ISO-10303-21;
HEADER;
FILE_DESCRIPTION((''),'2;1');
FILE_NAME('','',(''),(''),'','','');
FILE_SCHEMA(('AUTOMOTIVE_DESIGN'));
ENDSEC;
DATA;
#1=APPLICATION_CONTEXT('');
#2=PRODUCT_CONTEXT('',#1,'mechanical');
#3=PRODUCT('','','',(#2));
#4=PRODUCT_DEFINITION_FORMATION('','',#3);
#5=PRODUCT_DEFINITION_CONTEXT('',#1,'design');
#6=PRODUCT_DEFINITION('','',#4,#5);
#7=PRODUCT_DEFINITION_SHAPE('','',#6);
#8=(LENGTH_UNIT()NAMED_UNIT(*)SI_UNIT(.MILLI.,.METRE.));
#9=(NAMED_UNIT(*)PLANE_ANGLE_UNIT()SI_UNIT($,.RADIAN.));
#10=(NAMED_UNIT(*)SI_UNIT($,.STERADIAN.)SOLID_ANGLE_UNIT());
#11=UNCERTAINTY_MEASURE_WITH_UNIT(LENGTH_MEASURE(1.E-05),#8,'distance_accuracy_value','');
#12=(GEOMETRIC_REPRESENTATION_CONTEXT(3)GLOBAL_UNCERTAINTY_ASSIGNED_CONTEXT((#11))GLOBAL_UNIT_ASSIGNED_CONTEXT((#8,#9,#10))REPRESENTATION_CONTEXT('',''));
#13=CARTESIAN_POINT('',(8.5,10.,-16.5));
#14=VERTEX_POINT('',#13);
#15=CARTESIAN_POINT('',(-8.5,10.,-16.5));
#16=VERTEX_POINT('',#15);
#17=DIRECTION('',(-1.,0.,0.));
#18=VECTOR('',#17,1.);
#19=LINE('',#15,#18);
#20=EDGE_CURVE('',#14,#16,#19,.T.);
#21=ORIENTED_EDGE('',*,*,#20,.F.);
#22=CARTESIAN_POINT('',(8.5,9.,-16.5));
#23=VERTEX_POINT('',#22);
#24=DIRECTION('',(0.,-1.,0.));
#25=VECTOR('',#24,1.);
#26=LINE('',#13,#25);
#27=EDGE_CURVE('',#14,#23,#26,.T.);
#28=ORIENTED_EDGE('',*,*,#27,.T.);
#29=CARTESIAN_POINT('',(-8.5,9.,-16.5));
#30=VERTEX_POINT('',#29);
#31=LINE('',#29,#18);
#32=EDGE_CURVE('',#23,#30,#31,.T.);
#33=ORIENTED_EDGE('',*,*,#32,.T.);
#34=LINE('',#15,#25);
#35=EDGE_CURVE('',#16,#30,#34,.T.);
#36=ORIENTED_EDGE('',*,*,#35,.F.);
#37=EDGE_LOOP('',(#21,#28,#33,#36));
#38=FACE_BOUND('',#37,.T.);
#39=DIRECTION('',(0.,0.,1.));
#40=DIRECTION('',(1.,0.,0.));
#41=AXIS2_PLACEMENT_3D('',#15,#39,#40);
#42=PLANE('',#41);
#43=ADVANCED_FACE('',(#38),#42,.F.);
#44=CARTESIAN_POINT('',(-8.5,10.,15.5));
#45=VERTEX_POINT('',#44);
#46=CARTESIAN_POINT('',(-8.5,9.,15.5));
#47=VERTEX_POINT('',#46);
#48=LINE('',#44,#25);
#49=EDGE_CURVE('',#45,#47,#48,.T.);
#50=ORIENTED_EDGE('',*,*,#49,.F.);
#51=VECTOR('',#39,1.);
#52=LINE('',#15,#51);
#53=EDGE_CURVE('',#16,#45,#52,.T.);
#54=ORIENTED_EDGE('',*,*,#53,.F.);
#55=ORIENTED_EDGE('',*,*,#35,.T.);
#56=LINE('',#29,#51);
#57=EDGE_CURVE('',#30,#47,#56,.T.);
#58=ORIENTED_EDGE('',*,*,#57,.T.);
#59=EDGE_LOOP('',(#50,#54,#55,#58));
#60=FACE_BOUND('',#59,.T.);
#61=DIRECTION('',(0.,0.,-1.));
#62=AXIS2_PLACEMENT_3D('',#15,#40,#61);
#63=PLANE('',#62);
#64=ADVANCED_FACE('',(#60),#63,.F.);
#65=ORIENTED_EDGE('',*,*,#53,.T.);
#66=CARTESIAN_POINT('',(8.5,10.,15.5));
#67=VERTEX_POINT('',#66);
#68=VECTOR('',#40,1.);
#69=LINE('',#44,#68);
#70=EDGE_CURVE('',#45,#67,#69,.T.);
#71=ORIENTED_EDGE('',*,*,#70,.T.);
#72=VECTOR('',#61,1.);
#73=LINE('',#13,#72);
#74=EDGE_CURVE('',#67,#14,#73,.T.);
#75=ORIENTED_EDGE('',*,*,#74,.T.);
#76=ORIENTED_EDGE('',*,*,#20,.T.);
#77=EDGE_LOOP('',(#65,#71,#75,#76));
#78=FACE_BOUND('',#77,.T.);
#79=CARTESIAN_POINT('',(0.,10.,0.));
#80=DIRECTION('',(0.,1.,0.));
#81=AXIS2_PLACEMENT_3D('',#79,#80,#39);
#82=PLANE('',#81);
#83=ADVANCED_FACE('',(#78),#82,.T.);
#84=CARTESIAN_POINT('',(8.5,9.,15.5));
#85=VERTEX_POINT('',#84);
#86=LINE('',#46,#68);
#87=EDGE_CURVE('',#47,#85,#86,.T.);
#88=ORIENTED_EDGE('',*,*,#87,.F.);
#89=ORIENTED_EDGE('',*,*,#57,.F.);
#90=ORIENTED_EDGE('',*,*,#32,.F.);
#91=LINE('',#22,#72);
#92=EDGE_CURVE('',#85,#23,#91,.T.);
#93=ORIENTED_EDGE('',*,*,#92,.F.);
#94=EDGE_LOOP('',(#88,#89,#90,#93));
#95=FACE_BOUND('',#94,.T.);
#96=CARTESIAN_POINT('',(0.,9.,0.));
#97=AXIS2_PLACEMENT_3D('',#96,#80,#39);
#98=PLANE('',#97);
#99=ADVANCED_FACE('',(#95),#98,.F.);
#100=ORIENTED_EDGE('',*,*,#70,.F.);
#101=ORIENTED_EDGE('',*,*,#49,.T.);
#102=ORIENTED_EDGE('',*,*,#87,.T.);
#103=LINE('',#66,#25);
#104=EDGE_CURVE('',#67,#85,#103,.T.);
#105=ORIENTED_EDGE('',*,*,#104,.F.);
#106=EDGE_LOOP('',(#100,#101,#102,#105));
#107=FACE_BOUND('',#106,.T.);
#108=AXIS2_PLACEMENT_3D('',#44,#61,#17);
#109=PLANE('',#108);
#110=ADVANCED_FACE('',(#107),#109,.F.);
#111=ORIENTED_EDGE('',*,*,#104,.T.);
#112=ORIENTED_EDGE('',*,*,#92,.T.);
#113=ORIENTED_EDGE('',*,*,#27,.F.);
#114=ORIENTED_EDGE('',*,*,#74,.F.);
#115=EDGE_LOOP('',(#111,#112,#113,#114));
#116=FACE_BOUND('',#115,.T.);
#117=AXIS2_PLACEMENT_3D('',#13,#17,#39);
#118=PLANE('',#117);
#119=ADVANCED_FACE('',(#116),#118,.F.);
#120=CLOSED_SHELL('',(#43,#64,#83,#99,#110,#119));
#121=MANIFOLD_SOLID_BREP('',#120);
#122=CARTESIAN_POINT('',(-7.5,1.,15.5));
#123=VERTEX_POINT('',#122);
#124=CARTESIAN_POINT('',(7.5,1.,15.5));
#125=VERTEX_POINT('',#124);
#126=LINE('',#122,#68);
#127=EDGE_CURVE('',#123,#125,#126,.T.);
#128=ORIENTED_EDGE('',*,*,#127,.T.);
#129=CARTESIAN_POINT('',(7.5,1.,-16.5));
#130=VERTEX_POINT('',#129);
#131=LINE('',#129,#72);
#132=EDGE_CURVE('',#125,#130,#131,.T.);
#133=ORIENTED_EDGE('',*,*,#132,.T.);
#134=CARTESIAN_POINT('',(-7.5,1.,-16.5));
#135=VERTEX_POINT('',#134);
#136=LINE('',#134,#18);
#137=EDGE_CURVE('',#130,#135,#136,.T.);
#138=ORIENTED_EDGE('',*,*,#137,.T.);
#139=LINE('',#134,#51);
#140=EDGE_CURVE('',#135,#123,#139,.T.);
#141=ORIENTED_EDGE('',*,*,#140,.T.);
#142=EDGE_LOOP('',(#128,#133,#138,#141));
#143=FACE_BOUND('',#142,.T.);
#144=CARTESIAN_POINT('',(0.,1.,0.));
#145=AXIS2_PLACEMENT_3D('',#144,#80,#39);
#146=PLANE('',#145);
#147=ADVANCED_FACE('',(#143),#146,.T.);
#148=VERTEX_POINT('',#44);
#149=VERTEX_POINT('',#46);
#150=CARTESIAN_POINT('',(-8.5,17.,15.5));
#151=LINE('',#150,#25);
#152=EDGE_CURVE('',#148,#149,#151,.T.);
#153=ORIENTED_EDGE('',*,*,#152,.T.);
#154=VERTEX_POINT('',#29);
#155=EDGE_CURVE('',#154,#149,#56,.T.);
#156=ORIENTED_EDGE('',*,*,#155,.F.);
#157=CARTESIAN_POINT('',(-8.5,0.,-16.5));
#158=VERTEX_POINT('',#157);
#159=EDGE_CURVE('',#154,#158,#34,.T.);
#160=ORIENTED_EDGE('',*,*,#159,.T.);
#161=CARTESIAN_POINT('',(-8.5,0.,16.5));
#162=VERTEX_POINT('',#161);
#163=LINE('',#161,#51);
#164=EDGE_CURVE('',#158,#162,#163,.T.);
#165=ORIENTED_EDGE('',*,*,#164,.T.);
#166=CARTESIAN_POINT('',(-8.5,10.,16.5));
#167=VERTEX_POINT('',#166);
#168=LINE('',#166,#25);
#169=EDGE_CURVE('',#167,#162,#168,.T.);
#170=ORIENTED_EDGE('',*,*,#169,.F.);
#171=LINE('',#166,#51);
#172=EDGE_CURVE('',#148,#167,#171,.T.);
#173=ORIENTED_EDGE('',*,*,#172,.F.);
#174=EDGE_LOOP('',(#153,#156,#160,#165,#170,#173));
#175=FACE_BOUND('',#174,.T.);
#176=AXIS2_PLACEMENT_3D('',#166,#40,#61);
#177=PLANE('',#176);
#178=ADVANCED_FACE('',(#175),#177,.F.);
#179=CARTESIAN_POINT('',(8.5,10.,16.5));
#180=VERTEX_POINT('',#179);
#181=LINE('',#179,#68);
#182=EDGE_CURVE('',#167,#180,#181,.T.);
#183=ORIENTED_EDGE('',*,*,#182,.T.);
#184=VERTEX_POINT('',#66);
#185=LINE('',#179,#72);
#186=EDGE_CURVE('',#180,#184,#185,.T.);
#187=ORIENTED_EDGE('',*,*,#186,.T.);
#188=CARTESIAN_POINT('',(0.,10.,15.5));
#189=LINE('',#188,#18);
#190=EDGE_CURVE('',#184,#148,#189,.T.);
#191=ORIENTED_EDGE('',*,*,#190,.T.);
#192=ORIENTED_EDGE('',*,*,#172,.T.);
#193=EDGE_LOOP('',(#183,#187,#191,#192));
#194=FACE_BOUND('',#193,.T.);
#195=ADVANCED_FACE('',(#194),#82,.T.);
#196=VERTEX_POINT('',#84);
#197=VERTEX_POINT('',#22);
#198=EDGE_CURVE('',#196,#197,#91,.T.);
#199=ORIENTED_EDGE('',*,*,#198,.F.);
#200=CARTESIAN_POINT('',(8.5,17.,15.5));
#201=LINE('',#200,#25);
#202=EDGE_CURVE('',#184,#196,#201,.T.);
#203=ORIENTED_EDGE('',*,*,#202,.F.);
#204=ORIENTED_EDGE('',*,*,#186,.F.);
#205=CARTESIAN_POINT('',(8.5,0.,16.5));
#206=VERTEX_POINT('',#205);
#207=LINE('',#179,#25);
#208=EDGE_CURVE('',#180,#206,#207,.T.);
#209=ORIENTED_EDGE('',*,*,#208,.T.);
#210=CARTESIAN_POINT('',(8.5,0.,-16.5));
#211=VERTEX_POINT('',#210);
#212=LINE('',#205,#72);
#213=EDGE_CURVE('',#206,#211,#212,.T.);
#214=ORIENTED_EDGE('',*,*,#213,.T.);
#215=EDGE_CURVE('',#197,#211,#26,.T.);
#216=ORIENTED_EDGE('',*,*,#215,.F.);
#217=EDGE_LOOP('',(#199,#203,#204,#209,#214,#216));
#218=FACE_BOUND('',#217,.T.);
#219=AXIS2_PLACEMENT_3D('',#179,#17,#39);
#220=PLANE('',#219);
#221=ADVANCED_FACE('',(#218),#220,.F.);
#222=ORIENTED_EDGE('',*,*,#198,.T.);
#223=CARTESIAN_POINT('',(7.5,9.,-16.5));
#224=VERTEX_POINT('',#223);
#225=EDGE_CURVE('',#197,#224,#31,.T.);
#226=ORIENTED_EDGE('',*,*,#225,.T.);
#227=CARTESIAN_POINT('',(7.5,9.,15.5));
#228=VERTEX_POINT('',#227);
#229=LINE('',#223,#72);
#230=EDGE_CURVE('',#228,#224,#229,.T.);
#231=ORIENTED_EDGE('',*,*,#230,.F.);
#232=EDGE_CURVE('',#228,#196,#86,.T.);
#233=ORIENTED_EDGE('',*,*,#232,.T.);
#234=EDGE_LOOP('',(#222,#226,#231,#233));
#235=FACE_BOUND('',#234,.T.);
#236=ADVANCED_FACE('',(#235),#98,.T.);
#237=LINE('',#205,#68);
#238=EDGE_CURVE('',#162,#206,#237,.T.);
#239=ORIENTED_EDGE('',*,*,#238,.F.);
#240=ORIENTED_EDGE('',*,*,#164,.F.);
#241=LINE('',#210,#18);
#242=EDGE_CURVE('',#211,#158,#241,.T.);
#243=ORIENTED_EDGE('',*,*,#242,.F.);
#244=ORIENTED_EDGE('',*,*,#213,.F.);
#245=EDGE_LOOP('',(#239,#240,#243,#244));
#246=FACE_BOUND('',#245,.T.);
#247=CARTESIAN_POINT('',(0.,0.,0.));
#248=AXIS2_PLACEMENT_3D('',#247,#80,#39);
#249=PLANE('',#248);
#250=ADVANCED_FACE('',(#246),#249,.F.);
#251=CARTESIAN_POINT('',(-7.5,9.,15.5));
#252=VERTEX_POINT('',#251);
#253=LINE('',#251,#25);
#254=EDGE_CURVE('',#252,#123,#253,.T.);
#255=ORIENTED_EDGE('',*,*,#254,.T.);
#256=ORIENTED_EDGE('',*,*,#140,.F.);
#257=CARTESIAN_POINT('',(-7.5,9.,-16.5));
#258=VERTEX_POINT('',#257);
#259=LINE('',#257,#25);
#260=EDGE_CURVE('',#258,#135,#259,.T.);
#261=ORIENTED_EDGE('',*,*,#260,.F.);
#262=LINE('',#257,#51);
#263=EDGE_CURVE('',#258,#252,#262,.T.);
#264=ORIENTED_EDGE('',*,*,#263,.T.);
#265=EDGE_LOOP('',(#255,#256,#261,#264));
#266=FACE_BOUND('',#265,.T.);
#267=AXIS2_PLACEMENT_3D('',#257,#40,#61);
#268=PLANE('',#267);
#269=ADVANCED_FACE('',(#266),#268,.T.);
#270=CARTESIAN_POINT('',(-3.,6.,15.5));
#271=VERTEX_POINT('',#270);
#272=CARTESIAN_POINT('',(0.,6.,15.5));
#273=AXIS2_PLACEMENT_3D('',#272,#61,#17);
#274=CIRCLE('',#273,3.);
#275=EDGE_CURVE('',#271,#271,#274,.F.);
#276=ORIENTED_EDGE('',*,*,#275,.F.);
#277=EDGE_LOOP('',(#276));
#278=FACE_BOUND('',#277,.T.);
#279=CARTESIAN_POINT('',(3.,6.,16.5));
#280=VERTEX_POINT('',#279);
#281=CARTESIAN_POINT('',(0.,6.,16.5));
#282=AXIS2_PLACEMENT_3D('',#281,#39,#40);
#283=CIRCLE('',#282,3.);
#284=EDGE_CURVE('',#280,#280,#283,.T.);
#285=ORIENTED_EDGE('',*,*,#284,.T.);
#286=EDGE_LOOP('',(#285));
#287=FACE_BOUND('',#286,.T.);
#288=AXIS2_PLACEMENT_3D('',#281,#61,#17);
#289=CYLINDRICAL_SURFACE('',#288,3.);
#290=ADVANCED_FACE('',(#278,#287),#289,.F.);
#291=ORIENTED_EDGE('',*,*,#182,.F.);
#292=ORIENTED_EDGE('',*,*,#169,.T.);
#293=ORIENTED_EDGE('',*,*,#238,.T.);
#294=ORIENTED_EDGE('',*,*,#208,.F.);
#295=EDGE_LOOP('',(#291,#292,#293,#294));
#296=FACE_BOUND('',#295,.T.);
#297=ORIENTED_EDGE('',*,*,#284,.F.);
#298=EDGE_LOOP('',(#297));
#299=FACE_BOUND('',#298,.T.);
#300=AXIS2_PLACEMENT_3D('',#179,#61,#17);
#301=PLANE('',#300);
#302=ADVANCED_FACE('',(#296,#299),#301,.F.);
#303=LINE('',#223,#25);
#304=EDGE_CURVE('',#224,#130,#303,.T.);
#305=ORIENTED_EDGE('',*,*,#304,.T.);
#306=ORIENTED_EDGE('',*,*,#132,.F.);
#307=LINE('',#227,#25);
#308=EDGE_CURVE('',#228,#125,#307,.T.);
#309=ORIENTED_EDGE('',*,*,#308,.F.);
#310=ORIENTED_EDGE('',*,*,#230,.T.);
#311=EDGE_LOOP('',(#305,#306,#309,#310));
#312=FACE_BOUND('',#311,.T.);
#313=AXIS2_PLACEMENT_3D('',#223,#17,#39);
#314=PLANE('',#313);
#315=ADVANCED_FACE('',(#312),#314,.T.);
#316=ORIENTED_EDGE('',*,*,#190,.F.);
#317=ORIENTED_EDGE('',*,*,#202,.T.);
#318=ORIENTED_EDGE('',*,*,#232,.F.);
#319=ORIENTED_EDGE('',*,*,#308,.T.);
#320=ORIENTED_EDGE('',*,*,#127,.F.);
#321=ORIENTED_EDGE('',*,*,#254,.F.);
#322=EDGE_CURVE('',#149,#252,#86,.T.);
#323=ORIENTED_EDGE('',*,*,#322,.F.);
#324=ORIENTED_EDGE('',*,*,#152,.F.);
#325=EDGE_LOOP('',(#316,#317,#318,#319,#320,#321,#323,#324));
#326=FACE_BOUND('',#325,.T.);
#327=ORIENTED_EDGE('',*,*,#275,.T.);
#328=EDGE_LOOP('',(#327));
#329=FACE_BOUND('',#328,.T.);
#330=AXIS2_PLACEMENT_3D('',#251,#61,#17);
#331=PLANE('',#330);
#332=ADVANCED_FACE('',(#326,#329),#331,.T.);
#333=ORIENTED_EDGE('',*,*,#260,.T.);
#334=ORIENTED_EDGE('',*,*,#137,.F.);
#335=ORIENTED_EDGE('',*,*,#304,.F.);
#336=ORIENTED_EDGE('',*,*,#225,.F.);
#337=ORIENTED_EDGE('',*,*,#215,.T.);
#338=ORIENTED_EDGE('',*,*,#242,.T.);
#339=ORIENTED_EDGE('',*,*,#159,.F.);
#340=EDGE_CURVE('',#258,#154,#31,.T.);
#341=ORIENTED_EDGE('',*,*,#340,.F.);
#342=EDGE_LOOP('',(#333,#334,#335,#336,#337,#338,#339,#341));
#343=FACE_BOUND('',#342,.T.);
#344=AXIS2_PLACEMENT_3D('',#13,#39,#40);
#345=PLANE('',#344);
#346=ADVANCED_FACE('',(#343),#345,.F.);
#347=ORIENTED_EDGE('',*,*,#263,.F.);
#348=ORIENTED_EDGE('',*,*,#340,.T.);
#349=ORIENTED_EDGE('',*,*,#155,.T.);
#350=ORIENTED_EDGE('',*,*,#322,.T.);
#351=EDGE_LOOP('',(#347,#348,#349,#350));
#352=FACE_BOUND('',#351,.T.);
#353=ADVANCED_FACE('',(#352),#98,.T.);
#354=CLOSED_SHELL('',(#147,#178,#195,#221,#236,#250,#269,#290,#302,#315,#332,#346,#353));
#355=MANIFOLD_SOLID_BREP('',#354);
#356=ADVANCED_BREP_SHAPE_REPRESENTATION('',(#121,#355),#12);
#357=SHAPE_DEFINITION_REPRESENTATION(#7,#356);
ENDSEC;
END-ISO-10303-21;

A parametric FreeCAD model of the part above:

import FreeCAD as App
import Part
import Sketcher
from FreeCAD import Vector
Q = App.Units.Quantity


def add_polygon(sketch, points):
    """Adds a closed chain of lines whose ends are joined by coincident constraints."""
    first, n = sketch.GeometryCount, len(points)
    for a, b in zip(points, points[1:] + points[:1]):
        sketch.addGeometry(Part.LineSegment(App.Vector(*a, 0), App.Vector(*b, 0)), False)
    for i in range(n):
        sketch.addConstraint(Sketcher.Constraint("Coincident", first + i, 2, first + (i + 1) % n, 1))

doc = App.newDocument("Part")
body = doc.addObject("PartDesign::Body", "Body")

# Sketch on XZ plane
sketch1 = body.newObject("Sketcher::SketchObject", "Sketch")
sketch1.AttachmentSupport = (doc.getObject("XZ_Plane"), [""])
sketch1.MapMode = "FlatFace"
add_polygon(sketch1, [(-8.5, -16.5), (-8.5, 16.5), (8.5, 16.5), (8.5, -16.5)])  # lines 0-3
sketch1.addConstraint(Sketcher.Constraint("Vertical", 0))
sketch1.addConstraint(Sketcher.Constraint("Horizontal", 1))
sketch1.addConstraint(Sketcher.Constraint("Vertical", 2))
sketch1.addConstraint(Sketcher.Constraint("Horizontal", 3))
sketch1.addConstraint(Sketcher.Constraint("Symmetric", 0, 2, 2, 2, -1, 1))
sketch1.addConstraint(Sketcher.Constraint("DistanceX", 1, 1, 1, 2, Q("17 mm")))
sketch1.addConstraint(Sketcher.Constraint("DistanceY", 0, 1, 0, 2, Q("33 mm")))
pad1 = body.newObject("PartDesign::Pad", "Pad")
pad1.Profile = sketch1
pad1.Length = 10
pad1.Reversed = True

# Sketch on XZ plane
sketch2 = body.newObject("Sketcher::SketchObject", "Sketch001")
sketch2.AttachmentSupport = (doc.getObject("XZ_Plane"), [""])
sketch2.MapMode = "FlatFace"
sketch2.AttachmentOffset = App.Placement(Vector(0, 0, -1), App.Rotation())
add_polygon(sketch2, [(-7.5, -16.5), (-7.5, 15.5), (7.5, 15.5), (7.5, -16.5)])  # lines 0-3
sketch2.addConstraint(Sketcher.Constraint("Vertical", 0))
sketch2.addConstraint(Sketcher.Constraint("Horizontal", 1))
sketch2.addConstraint(Sketcher.Constraint("Vertical", 2))
sketch2.addConstraint(Sketcher.Constraint("Horizontal", 3))
sketch2.addConstraint(Sketcher.Constraint("DistanceX", 1, 1, 1, 2, Q("15 mm")))
sketch2.addConstraint(Sketcher.Constraint("DistanceY", 0, 1, 0, 2, Q("32 mm")))
sketch2.addConstraint(Sketcher.Constraint("DistanceX", 0, 2, -1, 1, Q("7.5 mm")))
sketch2.addConstraint(Sketcher.Constraint("DistanceY", -1, 1, 0, 2, Q("15.5 mm")))
pocket1 = body.newObject("PartDesign::Pocket", "Pocket")
pocket1.Profile = sketch2
pocket1.Length = 8

# Sketch on XY plane
sketch3 = body.newObject("Sketcher::SketchObject", "Sketch002")
sketch3.AttachmentSupport = (doc.getObject("XY_Plane"), [""])
sketch3.MapMode = "FlatFace"
sketch3.addGeometry(Part.Circle(Vector(0, 6, 0), Vector(0, 0, 1), 3), False)
sketch3.addConstraint(Sketcher.Constraint("PointOnObject", 0, 3, -2))
sketch3.addConstraint(Sketcher.Constraint("Diameter", 0, Q("6 mm")))
sketch3.addConstraint(Sketcher.Constraint("DistanceY", -1, 1, 0, 3, Q("6 mm")))
pocket2 = body.newObject("PartDesign::Pocket", "Pocket001")
pocket2.Profile = sketch3
pocket2.Type = "ThroughAll"
pocket2.Reversed = True

# Sketch on XZ plane
sketch4 = body.newObject("Sketcher::SketchObject", "Sketch003")
sketch4.AttachmentSupport = (doc.getObject("XZ_Plane"), [""])
sketch4.MapMode = "FlatFace"
sketch4.AttachmentOffset = App.Placement(Vector(0, 0, -9), App.Rotation())
add_polygon(sketch4, [(-8.5, -16.5), (-8.5, 15.5), (8.5, 15.5), (8.5, -16.5)])  # lines 0-3
sketch4.addConstraint(Sketcher.Constraint("Vertical", 0))
sketch4.addConstraint(Sketcher.Constraint("Horizontal", 1))
sketch4.addConstraint(Sketcher.Constraint("Vertical", 2))
sketch4.addConstraint(Sketcher.Constraint("Horizontal", 3))
sketch4.addConstraint(Sketcher.Constraint("DistanceX", 1, 1, 1, 2, Q("17 mm")))
sketch4.addConstraint(Sketcher.Constraint("DistanceY", 0, 1, 0, 2, Q("32 mm")))
sketch4.addConstraint(Sketcher.Constraint("DistanceX", 0, 2, -1, 1, Q("8.5 mm")))
sketch4.addConstraint(Sketcher.Constraint("DistanceY", -1, 1, 0, 2, Q("15.5 mm")))
pocket3 = body.newObject("PartDesign::Pocket", "Pocket002")
pocket3.Profile = sketch4
pocket3.Length = 8
body2 = doc.addObject("PartDesign::Body", "Body001")

# Sketch on XZ plane
sketch5 = body2.newObject("Sketcher::SketchObject", "Sketch004")
sketch5.AttachmentSupport = (doc.getObject("XZ_Plane001"), [""])
sketch5.MapMode = "FlatFace"
sketch5.AttachmentOffset = App.Placement(Vector(0, 0, -9), App.Rotation())
add_polygon(sketch5, [(-8.5, -16.5), (-8.5, 15.5), (8.5, 15.5), (8.5, -16.5)])  # lines 0-3
sketch5.addConstraint(Sketcher.Constraint("Vertical", 0))
sketch5.addConstraint(Sketcher.Constraint("Horizontal", 1))
sketch5.addConstraint(Sketcher.Constraint("Vertical", 2))
sketch5.addConstraint(Sketcher.Constraint("Horizontal", 3))
sketch5.addConstraint(Sketcher.Constraint("DistanceX", 1, 1, 1, 2, Q("17 mm")))
sketch5.addConstraint(Sketcher.Constraint("DistanceY", 0, 1, 0, 2, Q("32 mm")))
sketch5.addConstraint(Sketcher.Constraint("DistanceX", 0, 2, -1, 1, Q("8.5 mm")))
sketch5.addConstraint(Sketcher.Constraint("DistanceY", -1, 1, 0, 2, Q("15.5 mm")))
pad2 = body2.newObject("PartDesign::Pad", "Pad001")
pad2.Profile = sketch5
pad2.Length = 1
pad2.Reversed = True

doc.recompute()
